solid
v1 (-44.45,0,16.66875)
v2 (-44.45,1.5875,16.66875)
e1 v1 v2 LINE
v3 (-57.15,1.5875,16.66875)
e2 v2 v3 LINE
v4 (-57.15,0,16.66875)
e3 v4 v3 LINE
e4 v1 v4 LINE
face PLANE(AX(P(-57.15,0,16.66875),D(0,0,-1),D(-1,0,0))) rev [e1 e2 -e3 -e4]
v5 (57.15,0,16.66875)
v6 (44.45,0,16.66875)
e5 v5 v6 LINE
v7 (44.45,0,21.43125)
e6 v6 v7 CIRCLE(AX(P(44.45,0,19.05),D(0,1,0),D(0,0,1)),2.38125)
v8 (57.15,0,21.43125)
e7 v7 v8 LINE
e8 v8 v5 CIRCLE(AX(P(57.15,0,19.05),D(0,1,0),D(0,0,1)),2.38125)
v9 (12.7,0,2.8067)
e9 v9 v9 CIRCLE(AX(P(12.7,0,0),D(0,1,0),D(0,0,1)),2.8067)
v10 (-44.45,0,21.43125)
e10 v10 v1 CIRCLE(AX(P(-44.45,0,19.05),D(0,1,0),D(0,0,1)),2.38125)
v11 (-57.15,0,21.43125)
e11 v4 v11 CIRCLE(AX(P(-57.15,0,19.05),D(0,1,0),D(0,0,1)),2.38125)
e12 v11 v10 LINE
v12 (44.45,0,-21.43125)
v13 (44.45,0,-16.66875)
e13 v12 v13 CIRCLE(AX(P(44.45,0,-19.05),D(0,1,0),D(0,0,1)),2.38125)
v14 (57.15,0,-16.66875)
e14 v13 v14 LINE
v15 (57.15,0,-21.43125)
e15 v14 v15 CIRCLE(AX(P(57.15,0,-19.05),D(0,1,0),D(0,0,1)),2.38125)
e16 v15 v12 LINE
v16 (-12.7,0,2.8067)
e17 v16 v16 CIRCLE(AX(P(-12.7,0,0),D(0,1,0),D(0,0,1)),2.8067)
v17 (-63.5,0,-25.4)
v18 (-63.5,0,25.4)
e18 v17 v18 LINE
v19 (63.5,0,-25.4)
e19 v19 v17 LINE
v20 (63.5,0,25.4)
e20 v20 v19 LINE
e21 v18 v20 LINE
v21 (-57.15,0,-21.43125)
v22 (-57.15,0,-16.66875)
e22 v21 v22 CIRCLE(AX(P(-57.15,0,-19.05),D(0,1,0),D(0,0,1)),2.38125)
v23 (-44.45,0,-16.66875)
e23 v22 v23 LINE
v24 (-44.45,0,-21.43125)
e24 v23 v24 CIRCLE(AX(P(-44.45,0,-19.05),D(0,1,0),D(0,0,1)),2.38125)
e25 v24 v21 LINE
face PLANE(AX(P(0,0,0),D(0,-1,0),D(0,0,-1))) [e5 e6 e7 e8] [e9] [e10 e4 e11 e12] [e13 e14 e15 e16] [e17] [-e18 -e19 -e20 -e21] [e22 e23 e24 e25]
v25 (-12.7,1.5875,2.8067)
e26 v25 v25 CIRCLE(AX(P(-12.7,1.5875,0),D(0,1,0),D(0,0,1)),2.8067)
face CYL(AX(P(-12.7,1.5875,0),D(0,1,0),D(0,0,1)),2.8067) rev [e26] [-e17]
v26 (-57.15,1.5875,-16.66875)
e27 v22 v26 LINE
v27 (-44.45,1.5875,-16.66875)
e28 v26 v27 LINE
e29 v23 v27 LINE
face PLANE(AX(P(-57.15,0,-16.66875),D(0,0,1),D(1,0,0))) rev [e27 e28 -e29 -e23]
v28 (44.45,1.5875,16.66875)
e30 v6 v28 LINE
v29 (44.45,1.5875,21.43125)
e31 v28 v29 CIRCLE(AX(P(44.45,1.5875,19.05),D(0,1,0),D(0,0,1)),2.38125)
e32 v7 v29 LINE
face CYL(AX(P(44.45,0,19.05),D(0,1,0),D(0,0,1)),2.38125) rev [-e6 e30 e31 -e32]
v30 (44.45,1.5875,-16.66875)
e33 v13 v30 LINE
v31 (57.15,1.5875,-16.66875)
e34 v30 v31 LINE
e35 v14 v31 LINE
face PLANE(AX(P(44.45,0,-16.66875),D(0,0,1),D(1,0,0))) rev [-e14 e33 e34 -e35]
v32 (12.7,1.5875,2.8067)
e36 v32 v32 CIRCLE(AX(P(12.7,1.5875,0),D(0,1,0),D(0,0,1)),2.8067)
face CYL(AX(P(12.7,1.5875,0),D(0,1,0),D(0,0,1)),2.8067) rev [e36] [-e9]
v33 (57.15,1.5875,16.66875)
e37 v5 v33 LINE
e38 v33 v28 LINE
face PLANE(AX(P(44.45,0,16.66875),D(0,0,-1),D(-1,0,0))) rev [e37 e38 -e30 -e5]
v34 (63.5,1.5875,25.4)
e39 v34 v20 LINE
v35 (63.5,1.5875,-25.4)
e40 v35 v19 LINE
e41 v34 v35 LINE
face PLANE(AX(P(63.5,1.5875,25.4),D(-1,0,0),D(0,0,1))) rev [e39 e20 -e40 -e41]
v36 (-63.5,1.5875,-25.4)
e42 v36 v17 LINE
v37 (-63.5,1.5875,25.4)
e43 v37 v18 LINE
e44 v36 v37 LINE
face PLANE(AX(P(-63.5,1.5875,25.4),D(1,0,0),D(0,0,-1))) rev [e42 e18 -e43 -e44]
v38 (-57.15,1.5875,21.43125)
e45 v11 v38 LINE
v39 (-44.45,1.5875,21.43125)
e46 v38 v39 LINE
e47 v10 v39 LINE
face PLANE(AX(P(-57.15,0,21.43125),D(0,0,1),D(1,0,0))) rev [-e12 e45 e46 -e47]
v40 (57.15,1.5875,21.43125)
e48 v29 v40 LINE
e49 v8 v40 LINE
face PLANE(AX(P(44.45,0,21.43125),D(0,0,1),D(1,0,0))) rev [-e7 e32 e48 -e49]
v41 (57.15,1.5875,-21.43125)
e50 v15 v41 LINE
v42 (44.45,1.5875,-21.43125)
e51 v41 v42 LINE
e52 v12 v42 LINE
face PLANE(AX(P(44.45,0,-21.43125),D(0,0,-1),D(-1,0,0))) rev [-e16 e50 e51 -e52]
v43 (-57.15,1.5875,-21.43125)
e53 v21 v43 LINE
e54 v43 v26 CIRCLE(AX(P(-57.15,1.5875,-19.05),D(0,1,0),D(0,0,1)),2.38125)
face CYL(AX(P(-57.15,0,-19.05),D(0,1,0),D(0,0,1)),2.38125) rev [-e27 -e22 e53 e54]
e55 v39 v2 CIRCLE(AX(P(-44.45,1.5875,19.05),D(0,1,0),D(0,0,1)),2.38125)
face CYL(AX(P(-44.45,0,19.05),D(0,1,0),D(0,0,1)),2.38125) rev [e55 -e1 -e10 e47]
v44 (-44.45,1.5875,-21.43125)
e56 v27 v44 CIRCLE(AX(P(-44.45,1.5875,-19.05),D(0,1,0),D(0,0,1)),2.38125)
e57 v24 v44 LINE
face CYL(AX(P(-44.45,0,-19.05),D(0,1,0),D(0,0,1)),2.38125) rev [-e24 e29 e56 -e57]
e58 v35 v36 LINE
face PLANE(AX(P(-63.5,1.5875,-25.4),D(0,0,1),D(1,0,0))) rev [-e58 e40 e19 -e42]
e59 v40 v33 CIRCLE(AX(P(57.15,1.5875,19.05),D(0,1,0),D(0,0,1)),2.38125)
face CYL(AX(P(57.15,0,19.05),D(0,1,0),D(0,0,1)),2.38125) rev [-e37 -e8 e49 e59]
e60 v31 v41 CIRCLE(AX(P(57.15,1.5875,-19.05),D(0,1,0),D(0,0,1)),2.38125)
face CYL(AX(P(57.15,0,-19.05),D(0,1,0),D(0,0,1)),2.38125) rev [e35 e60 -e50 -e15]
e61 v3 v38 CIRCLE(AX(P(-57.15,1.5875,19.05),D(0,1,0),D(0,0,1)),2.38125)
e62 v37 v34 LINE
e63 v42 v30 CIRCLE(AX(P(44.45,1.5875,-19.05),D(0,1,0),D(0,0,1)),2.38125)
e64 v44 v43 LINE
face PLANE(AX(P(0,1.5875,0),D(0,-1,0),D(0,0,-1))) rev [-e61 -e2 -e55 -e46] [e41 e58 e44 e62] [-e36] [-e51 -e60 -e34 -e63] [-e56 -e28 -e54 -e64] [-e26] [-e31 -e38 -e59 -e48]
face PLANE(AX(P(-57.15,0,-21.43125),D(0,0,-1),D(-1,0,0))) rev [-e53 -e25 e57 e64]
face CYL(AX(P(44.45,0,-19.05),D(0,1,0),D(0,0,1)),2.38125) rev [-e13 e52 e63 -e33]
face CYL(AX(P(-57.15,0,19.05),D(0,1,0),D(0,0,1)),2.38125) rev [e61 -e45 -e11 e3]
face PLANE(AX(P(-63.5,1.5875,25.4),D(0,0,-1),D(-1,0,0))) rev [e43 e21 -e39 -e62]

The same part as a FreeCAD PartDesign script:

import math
import FreeCAD as App
import Part
import Sketcher

V = App.Vector
Q = App.Units.Quantity


def add_polygon(sketch, points):
    """Adds a closed chain of lines whose ends are joined by coincident constraints."""
    first, n = sketch.GeometryCount, len(points)
    for a, b in zip(points, points[1:] + points[:1]):
        sketch.addGeometry(Part.LineSegment(App.Vector(*a, 0), App.Vector(*b, 0)), False)
    for i in range(n):
        sketch.addConstraint(Sketcher.Constraint("Coincident", first + i, 2, first + (i + 1) % n, 1))

doc = App.newDocument("Part")
params = doc.addObject("Spreadsheet::Sheet", "Params")
for row, (alias, value) in enumerate([
    ("sketch1_width", "5 in"),
    ("sketch1_height", "2 in"),
    ("pad1_length", "0.0625 in"),
    ("sketch2_diameter", "0.1 in"),
    ("sketch2_width", "0.5 in"),
    ("sketch2_radius", "0.09375 in"),
    ("sketch3_diameter", "0.221 in"),
    ("hole_diameter", "0.221 in"),
], start=1):
    params.set(f"A{row}", alias)
    params.set(f"B{row}", "=" + value)
    params.setAlias(f"B{row}", alias)

body = doc.addObject("PartDesign::Body", "Body")

# Sketch on XZ plane
sketch1 = body.newObject("Sketcher::SketchObject", "Sketch")
sketch1.AttachmentSupport = (doc.getObject("XZ_Plane"), [""])
sketch1.MapMode = "FlatFace"
add_polygon(sketch1, [(-64, -25), (-64, 25), (64, 25), (64, -25)])  # lines 0-3
sketch1.addConstraint(Sketcher.Constraint("Vertical", 0))
sketch1.addConstraint(Sketcher.Constraint("Horizontal", 1))
sketch1.addConstraint(Sketcher.Constraint("Vertical", 2))
sketch1.addConstraint(Sketcher.Constraint("Horizontal", 3))
sketch1.addConstraint(Sketcher.Constraint("Symmetric", 0, 2, 2, 2, -1, 1))
sketch1.addConstraint(Sketcher.Constraint("DistanceX", 1, 1, 1, 2, Q("5 in")))
sketch1.addConstraint(Sketcher.Constraint("DistanceY", 0, 1, 0, 2, Q("2 in")))
sketch1.setExpression("Constraints[9]", "Params.sketch1_width")
sketch1.setExpression("Constraints[10]", "Params.sketch1_height")
pad1 = body.newObject("PartDesign::Pad", "Pad")
pad1.Profile = sketch1
pad1.setExpression("Length", "Params.pad1_length")
pad1.Reversed = True

# Sketch on XZ plane
sketch2 = body.newObject("Sketcher::SketchObject", "Sketch001")
sketch2.AttachmentSupport = (doc.getObject("XZ_Plane"), [""])
sketch2.MapMode = "FlatFace"
sketch2.AttachmentOffset = App.Placement(V(0, 0, -0.0625 * 25.4), App.Rotation())
sketch2.addGeometry(Part.Circle(V(-12.7, 0, 0), V(0, 0, 1), 1.3), False)
sketch2.addGeometry(Part.Circle(V(12.7, 0, 0), V(0, 0, 1), 1.3), False)
sketch2.addGeometry(Part.LineSegment(V(-57.1, -16.7, 0), V(-44.5, -16.7, 0)), False)
sketch2.addGeometry(Part.ArcOfCircle(Part.Circle(V(-44.5, -19.1, 0), V(0, 0, 1), 2.4), math.radians(-90), math.radians(90)), False)
sketch2.addGeometry(Part.LineSegment(V(-44.5, -21.4, 0), V(-57.1, -21.4, 0)), False)
sketch2.addGeometry(Part.ArcOfCircle(Part.Circle(V(-57.1, -19.1, 0), V(0, 0, 1), 2.4), math.radians(90), math.radians(270)), False)
sketch2.addGeometry(Part.LineSegment(V(-57.1, 21.4, 0), V(-44.5, 21.4, 0)), False)
sketch2.addGeometry(Part.ArcOfCircle(Part.Circle(V(-44.5, 19.1, 0), V(0, 0, 1), 2.4), math.radians(-90), math.radians(90)), False)
sketch2.addGeometry(Part.LineSegment(V(-44.5, 16.7, 0), V(-57.1, 16.7, 0)), False)
sketch2.addGeometry(Part.ArcOfCircle(Part.Circle(V(-57.1, 19.1, 0), V(0, 0, 1), 2.4), math.radians(90), math.radians(270)), False)
sketch2.addGeometry(Part.LineSegment(V(44.5, -16.7, 0), V(57.1, -16.7, 0)), False)
sketch2.addGeometry(Part.ArcOfCircle(Part.Circle(V(57.1, -19.1, 0), V(0, 0, 1), 2.4), math.radians(-90), math.radians(90)), False)
sketch2.addGeometry(Part.LineSegment(V(57.1, -21.4, 0), V(44.5, -21.4, 0)), False)
sketch2.addGeometry(Part.ArcOfCircle(Part.Circle(V(44.5, -19.1, 0), V(0, 0, 1), 2.4), math.radians(90), math.radians(270)), False)
sketch2.addGeometry(Part.LineSegment(V(44.5, 21.4, 0), V(57.1, 21.4, 0)), False)
sketch2.addGeometry(Part.ArcOfCircle(Part.Circle(V(57.1, 19.1, 0), V(0, 0, 1), 2.4), math.radians(-90), math.radians(90)), False)
sketch2.addGeometry(Part.LineSegment(V(57.1, 16.7, 0), V(44.5, 16.7, 0)), False)
sketch2.addGeometry(Part.ArcOfCircle(Part.Circle(V(44.5, 19.1, 0), V(0, 0, 1), 2.4), math.radians(90), math.radians(270)), False)
sketch2.addConstraint(Sketcher.Constraint("Tangent", 2, 2, 3, 2))
sketch2.addConstraint(Sketcher.Constraint("Tangent", 3, 1, 4, 1))
sketch2.addConstraint(Sketcher.Constraint("Tangent", 4, 2, 5, 2))
sketch2.addConstraint(Sketcher.Constraint("Tangent", 5, 1, 2, 1))
sketch2.addConstraint(Sketcher.Constraint("Tangent", 6, 2, 7, 2))
sketch2.addConstraint(Sketcher.Constraint("Tangent", 7, 1, 8, 1))
sketch2.addConstraint(Sketcher.Constraint("Tangent", 8, 2, 9, 2))
sketch2.addConstraint(Sketcher.Constraint("Tangent", 9, 1, 6, 1))
sketch2.addConstraint(Sketcher.Constraint("Tangent", 10, 2, 11, 2))
sketch2.addConstraint(Sketcher.Constraint("Tangent", 11, 1, 12, 1))
sketch2.addConstraint(Sketcher.Constraint("Tangent", 12, 2, 13, 2))
sketch2.addConstraint(Sketcher.Constraint("Tangent", 13, 1, 10, 1))
sketch2.addConstraint(Sketcher.Constraint("Tangent", 14, 2, 15, 2))
sketch2.addConstraint(Sketcher.Constraint("Tangent", 15, 1, 16, 1))
sketch2.addConstraint(Sketcher.Constraint("Tangent", 16, 2, 17, 2))
sketch2.addConstraint(Sketcher.Constraint("Tangent", 17, 1, 14, 1))
sketch2.addConstraint(Sketcher.Constraint("Horizontal", 2))
sketch2.addConstraint(Sketcher.Constraint("Horizontal", 4))
sketch2.addConstraint(Sketcher.Constraint("Horizontal", 6))
sketch2.addConstraint(Sketcher.Constraint("Horizontal", 8))
sketch2.addConstraint(Sketcher.Constraint("Horizontal", 10))
sketch2.addConstraint(Sketcher.Constraint("Horizontal", 12))
sketch2.addConstraint(Sketcher.Constraint("Horizontal", 14))
sketch2.addConstraint(Sketcher.Constraint("Horizontal", 16))
sketch2.addConstraint(Sketcher.Constraint("Equal", 0, 1))
sketch2.addConstraint(Sketcher.Constraint("Equal", 5, 7))
sketch2.addConstraint(Sketcher.Constraint("Equal", 9, 11))
sketch2.addConstraint(Sketcher.Constraint("Equal", 13, 15))
sketch2.addConstraint(Sketcher.Constraint("Symmetric", 0, 3, 1, 3, -1, 1))
sketch2.addConstraint(Sketcher.Constraint("Symmetric", 9, 3, 11, 3, -1, 1))
sketch2.addConstraint(Sketcher.Constraint("Symmetric", 5, 3, 15, 3, -1, 1))
sketch2.addConstraint(Sketcher.Constraint("Symmetric", 5, 3, 11, 3, -2))
sketch2.addConstraint(Sketcher.Constraint("PointOnObject", 0, 3, -1))
sketch2.addConstraint(Sketcher.Constraint("Vertical", 3, 3, 7, 3))
sketch2.addConstraint(Sketcher.Constraint("Vertical", 13, 3, 17, 3))
sketch2.addConstraint(Sketcher.Constraint("Equal", 8, 10))
sketch2.addConstraint(Sketcher.Constraint("Diameter", 0, Q("0.1 in")))
sketch2.addConstraint(Sketcher.Constraint("DistanceX", 2, 1, 2, 2, Q("0.5 in")))
sketch2.addConstraint(Sketcher.Constraint("Radius", 3, Q("0.09375 in")))
sketch2.addConstraint(Sketcher.Constraint("DistanceX", 0, 3, 1, 3, Q("1 in")))
sketch2.addConstraint(Sketcher.Constraint("DistanceX", 3, 3, 11, 3, Q("4 in")))
sketch2.addConstraint(Sketcher.Constraint("DistanceY", 3, 3, 7, 3, Q("1.5 in")))
sketch2.setExpression("Constraints[36]", "Params.sketch2_diameter")
sketch2.setExpression("Constraints[37]", "Params.sketch2_width")
sketch2.setExpression("Constraints[38]", "Params.sketch2_radius")
pocket1 = body.newObject("PartDesign::Pocket", "Pocket")
pocket1.Profile = sketch2
pocket1.Type = "ThroughAll"
pocket1.Reversed = True

# Sketch on XZ plane
sketch3 = body.newObject("Sketcher::SketchObject", "Sketch002")
sketch3.AttachmentSupport = (doc.getObject("XZ_Plane"), [""])
sketch3.MapMode = "FlatFace"
sketch3.AttachmentOffset = App.Placement(V(0, 0, -0.0625 * 25.4), App.Rotation())
sketch3.addGeometry(Part.Circle(V(-12.7, 0, 0), V(0, 0, 1), 2.8), False)
sketch3.addGeometry(Part.Circle(V(12.7, 0, 0), V(0, 0, 1), 2.8), False)
sketch3.addConstraint(Sketcher.Constraint("Equal", 0, 1))
sketch3.addConstraint(Sketcher.Constraint("Symmetric", 0, 3, 1, 3, -1, 1))
sketch3.addConstraint(Sketcher.Constraint("PointOnObject", 0, 3, -1))
sketch3.addConstraint(Sketcher.Constraint("Diameter", 0, Q("0.221 in")))
sketch3.addConstraint(Sketcher.Constraint("DistanceX", 0, 3, 1, 3, Q("1 in")))
sketch3.setExpression("Constraints[3]", "Params.sketch3_diameter")
doc.recompute()
hole = body.newObject("PartDesign::Hole", "Hole")
hole.Profile = sketch3
hole.ThreadType = "None"
hole.setExpression("Diameter", "Params.hole_diameter")
hole.DepthType = "ThroughAll"
hole.Reversed = True

doc.recompute()
